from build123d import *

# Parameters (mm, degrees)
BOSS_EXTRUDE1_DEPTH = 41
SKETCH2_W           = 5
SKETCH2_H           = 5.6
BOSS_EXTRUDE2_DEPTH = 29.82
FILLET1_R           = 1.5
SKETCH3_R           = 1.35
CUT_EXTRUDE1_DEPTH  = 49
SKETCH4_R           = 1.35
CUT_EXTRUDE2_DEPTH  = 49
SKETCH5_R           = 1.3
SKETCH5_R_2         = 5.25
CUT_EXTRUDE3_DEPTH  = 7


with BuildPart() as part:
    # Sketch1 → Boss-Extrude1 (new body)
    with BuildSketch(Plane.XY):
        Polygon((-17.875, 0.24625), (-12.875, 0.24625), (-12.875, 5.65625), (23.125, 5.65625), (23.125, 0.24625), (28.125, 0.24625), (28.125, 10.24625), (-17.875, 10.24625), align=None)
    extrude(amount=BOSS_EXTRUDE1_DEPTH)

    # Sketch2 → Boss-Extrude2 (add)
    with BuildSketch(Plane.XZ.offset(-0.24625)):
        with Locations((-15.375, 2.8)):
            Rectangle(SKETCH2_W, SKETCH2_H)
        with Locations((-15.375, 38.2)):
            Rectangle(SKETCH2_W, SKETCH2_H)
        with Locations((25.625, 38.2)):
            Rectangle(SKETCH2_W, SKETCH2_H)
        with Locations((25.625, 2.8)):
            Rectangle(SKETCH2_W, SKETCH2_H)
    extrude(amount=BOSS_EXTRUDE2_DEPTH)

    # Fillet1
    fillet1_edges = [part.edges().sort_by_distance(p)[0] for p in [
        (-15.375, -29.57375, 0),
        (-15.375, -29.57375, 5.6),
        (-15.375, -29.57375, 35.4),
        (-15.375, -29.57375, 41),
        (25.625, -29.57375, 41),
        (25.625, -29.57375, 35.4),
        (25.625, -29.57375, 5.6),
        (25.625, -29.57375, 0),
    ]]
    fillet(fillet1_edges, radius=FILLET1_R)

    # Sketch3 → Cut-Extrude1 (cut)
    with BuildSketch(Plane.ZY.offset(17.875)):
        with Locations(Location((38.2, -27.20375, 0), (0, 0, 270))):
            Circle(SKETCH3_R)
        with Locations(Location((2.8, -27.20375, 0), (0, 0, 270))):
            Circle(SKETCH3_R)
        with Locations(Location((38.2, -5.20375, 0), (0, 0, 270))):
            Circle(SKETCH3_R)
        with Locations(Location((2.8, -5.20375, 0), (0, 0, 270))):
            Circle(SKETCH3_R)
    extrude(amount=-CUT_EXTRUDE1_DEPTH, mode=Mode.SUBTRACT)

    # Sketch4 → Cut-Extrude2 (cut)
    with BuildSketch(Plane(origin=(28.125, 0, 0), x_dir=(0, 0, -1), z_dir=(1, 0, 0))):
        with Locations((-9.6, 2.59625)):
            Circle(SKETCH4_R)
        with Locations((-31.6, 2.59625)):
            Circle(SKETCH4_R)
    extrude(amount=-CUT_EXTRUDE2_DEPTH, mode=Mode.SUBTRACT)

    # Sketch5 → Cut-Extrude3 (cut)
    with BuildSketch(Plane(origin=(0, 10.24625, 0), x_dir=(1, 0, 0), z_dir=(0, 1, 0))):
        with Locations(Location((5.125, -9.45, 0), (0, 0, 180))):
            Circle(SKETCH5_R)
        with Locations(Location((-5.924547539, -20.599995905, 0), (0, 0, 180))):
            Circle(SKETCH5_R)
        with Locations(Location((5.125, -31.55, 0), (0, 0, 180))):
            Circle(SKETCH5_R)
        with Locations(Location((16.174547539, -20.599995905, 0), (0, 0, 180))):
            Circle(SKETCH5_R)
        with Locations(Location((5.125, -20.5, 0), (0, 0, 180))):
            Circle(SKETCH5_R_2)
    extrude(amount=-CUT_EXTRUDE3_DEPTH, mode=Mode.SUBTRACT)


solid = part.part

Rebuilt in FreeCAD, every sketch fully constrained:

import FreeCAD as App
import Part
import Sketcher

V = App.Vector


def edges_at(feature, points):
    """Names of the edges that pass closest to the given points."""
    edges = feature.Shape.Edges
    near = lambda p: min(range(len(edges)), key=lambda i: edges[i].distToShape(Part.Vertex(*p))[0])
    return sorted({f"Edge{near(p) + 1}" for p in points})


def add_polygon(sketch, points):
    """Adds a closed chain of lines whose ends are joined by coincident constraints."""
    first, n = sketch.GeometryCount, len(points)
    for a, b in zip(points, points[1:] + points[:1]):
        sketch.addGeometry(Part.LineSegment(App.Vector(*a, 0), App.Vector(*b, 0)), False)
    for i in range(n):
        sketch.addConstraint(Sketcher.Constraint("Coincident", first + i, 2, first + (i + 1) % n, 1))

doc = App.newDocument("Part")
body = doc.addObject("PartDesign::Body", "Body")

sketch1 = body.newObject("Sketcher::SketchObject", "Sketch")
sketch1.AttachmentSupport = (doc.getObject("XY_Plane"), [""])
sketch1.MapMode = "FlatFace"
add_polygon(sketch1, [(-17.875, 0.24625), (-12.875, 0.24625), (-12.875, 5.65625), (23.125, 5.65625), (23.125, 0.24625), (28.125, 0.24625), (28.125, 10.24625), (-17.875, 10.24625)])
sketch1.addConstraint([
    Sketcher.Constraint("Horizontal", 0),
    Sketcher.Constraint("Vertical", 1),
    Sketcher.Constraint("Horizontal", 2),
    Sketcher.Constraint("Vertical", 3),
    Sketcher.Constraint("Horizontal", 4),
    Sketcher.Constraint("Vertical", 5),
    Sketcher.Constraint("Horizontal", 6),
    Sketcher.Constraint("Vertical", 7),
    Sketcher.Constraint("Horizontal", 0, 2, 3, 2),
    Sketcher.Constraint("Equal", 0, 4),
    Sketcher.Constraint("DistanceX", 0, 1, 0, 2, 5.0),
    Sketcher.Constraint("DistanceX", 2, 1, 2, 2, 36.0),
    Sketcher.Constraint("DistanceY", 5, 1, 5, 2, 10.0),
    Sketcher.Constraint("DistanceY", 1, 1, 1, 2, 5.41),
    Sketcher.Constraint("DistanceX", 0, 2, -1, 1, 12.875),
    Sketcher.Constraint("DistanceY", -1, 1, 0, 2, 0.24625),
])
pad1 = body.newObject("PartDesign::Pad", "Pad")
pad1.Profile = sketch1
pad1.Length = 41

sketch2 = body.newObject("Sketcher::SketchObject", "Sketch001")
sketch2.AttachmentSupport = (doc.getObject("XZ_Plane"), [""])
sketch2.MapMode = "FlatFace"
sketch2.AttachmentOffset = App.Placement(V(0, 0, -0.24625), App.Rotation())
add_polygon(sketch2, [(-17.875, 5.6), (-17.875, 0), (-12.875, 0), (-12.875, 5.6)])
add_polygon(sketch2, [(-17.875, 41), (-17.875, 35.4), (-12.875, 35.4), (-12.875, 41)])
add_polygon(sketch2, [(23.125, 41), (23.125, 35.4), (28.125, 35.4), (28.125, 41)])
add_polygon(sketch2, [(23.125, 5.6), (23.125, 0), (28.125, 0), (28.125, 5.6)])
sketch2.addConstraint([
    Sketcher.Constraint("Vertical", 0),
    Sketcher.Constraint("Horizontal", 1),
    Sketcher.Constraint("Vertical", 2),
    Sketcher.Constraint("Horizontal", 3),
    Sketcher.Constraint("Vertical", 4),
    Sketcher.Constraint("Horizontal", 5),
    Sketcher.Constraint("Vertical", 6),
    Sketcher.Constraint("Horizontal", 7),
    Sketcher.Constraint("Vertical", 8),
    Sketcher.Constraint("Horizontal", 9),
    Sketcher.Constraint("Vertical", 10),
    Sketcher.Constraint("Horizontal", 11),
    Sketcher.Constraint("Vertical", 12),
    Sketcher.Constraint("Horizontal", 13),
    Sketcher.Constraint("Vertical", 14),
    Sketcher.Constraint("Horizontal", 15),
    Sketcher.Constraint("PointOnObject", 0, 2, -1),
    Sketcher.Constraint("PointOnObject", 12, 2, -1),
    Sketcher.Constraint("Horizontal", 5, 2, 8, 2),
    Sketcher.Constraint("Horizontal", 7, 2, 10, 2),
    Sketcher.Constraint("Horizontal", 3, 2, 14, 2),
    Sketcher.Constraint("Vertical", 3, 2, 4, 2),
    Sketcher.Constraint("Vertical", 2, 2, 5, 2),
    Sketcher.Constraint("Vertical", 11, 2, 12, 2),
    Sketcher.Constraint("Vertical", 10, 2, 13, 2),
    Sketcher.Constraint("Equal", 7, 9),
    Sketcher.Constraint("Equal", 2, 4),
    Sketcher.Constraint("DistanceX", 1, 1, 1, 2, 5.0),
    Sketcher.Constraint("DistanceY", 0, 2, 0, 1, 5.6),
    Sketcher.Constraint("DistanceY", -1, 1, 6, 2, 41.0),
    Sketcher.Constraint("DistanceX", 5, 2, 8, 2, 36.0),
    Sketcher.Constraint("DistanceX", 0, 2, -1, 1, 17.875),
])
pad2 = body.newObject("PartDesign::Pad", "Pad001")
pad2.Profile = sketch2
pad2.Length = 29.82
doc.recompute()

fillet = body.newObject("PartDesign::Fillet", "Fillet")
fillet.Base = (pad2, edges_at(pad2, [
    (-15.375, -29.574, 0),
    (-15.375, -29.574, 5.6),
    (-15.375, -29.574, 35.4),
    (-15.375, -29.574, 41),
    (25.625, -29.574, 41),
    (25.625, -29.574, 35.4),
    (25.625, -29.574, 5.6),
    (25.625, -29.574, 0),
]))
fillet.Radius = 1.5

sketch3 = body.newObject("Sketcher::SketchObject", "Sketch002")
sketch3.AttachmentSupport = (doc.getObject("YZ_Plane"), [""])
sketch3.MapMode = "FlatFace"
sketch3.AttachmentOffset = App.Placement(V(0, 0, -17.875), App.Rotation())
sketch3.addGeometry([
    Part.Circle(V(-27.20375, 38.2, 0), V(0, 0, 1), 1.35),
    Part.Circle(V(-27.20375, 2.8, 0), V(0, 0, 1), 1.35),
    Part.Circle(V(-5.20375, 38.2, 0), V(0, 0, 1), 1.35),
    Part.Circle(V(-5.20375, 2.8, 0), V(0, 0, 1), 1.35),
], False)
sketch3.addConstraint([
    Sketcher.Constraint("Equal", 0, 1),
    Sketcher.Constraint("Equal", 1, 2),
    Sketcher.Constraint("Equal", 2, 3),
    Sketcher.Constraint("Horizontal", 0, 3, 2, 3),
    Sketcher.Constraint("Horizontal", 1, 3, 3, 3),
    Sketcher.Constraint("Vertical", 0, 3, 1, 3),
    Sketcher.Constraint("Vertical", 2, 3, 3, 3),
    Sketcher.Constraint("Diameter", 0, 2.7),
    Sketcher.Constraint("DistanceX", 0, 3, 2, 3, 22.0),
    Sketcher.Constraint("DistanceY", -1, 1, 0, 3, 38.2),
    Sketcher.Constraint("DistanceY", -1, 1, 1, 3, 2.8),
    Sketcher.Constraint("DistanceX", 0, 3, -1, 1, 27.20375),
])
pocket1 = body.newObject("PartDesign::Pocket", "Pocket")
pocket1.Profile = sketch3
pocket1.Length = 49
pocket1.Reversed = True

sketch4 = body.newObject("Sketcher::SketchObject", "Sketch003")
sketch4.AttachmentSupport = (doc.getObject("YZ_Plane"), [""])
sketch4.MapMode = "FlatFace"
sketch4.AttachmentOffset = App.Placement(V(0, 0, 28.125), App.Rotation())
sketch4.addGeometry([
    Part.Circle(V(2.59625, 9.6, 0), V(0, 0, 1), 1.35),
    Part.Circle(V(2.59625, 31.6, 0), V(0, 0, 1), 1.35),
], False)
sketch4.addConstraint([
    Sketcher.Constraint("Equal", 0, 1),
    Sketcher.Constraint("Vertical", 0, 3, 1, 3),
    Sketcher.Constraint("Diameter", 0, 2.7),
    Sketcher.Constraint("DistanceY", 0, 3, 1, 3, 22.0),
    Sketcher.Constraint("DistanceY", -1, 1, 0, 3, 9.6),
    Sketcher.Constraint("DistanceX", -1, 1, 0, 3, 2.59625),
])
pocket2 = body.newObject("PartDesign::Pocket", "Pocket001")
pocket2.Profile = sketch4
pocket2.Length = 49

sketch5 = body.newObject("Sketcher::SketchObject", "Sketch004")
sketch5.AttachmentSupport = (doc.getObject("XZ_Plane"), [""])
sketch5.MapMode = "FlatFace"
sketch5.AttachmentOffset = App.Placement(V(0, 0, -10.24625), App.Rotation())
sketch5.addGeometry([
    Part.Circle(V(5.125, 9.45, 0), V(0, 0, 1), 1.3),
    Part.Circle(V(-5.924548, 20.599996, 0), V(0, 0, 1), 1.3),
    Part.Circle(V(5.125, 31.55, 0), V(0, 0, 1), 1.3),
    Part.Circle(V(16.174548, 20.599996, 0), V(0, 0, 1), 1.3),
    Part.Circle(V(5.125, 20.5, 0), V(0, 0, 1), 5.25),
], False)
sketch5.addConstraint([
    Sketcher.Constraint("Equal", 0, 1),
    Sketcher.Constraint("Equal", 1, 2),
    Sketcher.Constraint("Equal", 2, 3),
    Sketcher.Constraint("Horizontal", 1, 3, 3, 3),
    Sketcher.Constraint("Vertical", 0, 3, 2, 3),
    Sketcher.Constraint("Vertical", 2, 3, 4, 3),
    Sketcher.Constraint("Diameter", 0, 2.6),
    Sketcher.Constraint("Diameter", 4, 10.5),
    Sketcher.Constraint("DistanceY", -1, 1, 4, 3, 20.5),
    Sketcher.Constraint("DistanceY", 0, 3, 2, 3, 22.1),
    Sketcher.Constraint("DistanceY", -1, 1, 0, 3, 9.45),
    Sketcher.Constraint("DistanceX", -1, 1, 0, 3, 5.125),
    Sketcher.Constraint("DistanceX", 1, 3, -1, 1, 5.924548),
    Sketcher.Constraint("DistanceY", -1, 1, 1, 3, 20.599996),
    Sketcher.Constraint("DistanceX", -1, 1, 3, 3, 16.174548),
])
pocket3 = body.newObject("PartDesign::Pocket", "Pocket002")
pocket3.Profile = sketch5
pocket3.Length = 7
pocket3.Reversed = True

doc.recompute()
